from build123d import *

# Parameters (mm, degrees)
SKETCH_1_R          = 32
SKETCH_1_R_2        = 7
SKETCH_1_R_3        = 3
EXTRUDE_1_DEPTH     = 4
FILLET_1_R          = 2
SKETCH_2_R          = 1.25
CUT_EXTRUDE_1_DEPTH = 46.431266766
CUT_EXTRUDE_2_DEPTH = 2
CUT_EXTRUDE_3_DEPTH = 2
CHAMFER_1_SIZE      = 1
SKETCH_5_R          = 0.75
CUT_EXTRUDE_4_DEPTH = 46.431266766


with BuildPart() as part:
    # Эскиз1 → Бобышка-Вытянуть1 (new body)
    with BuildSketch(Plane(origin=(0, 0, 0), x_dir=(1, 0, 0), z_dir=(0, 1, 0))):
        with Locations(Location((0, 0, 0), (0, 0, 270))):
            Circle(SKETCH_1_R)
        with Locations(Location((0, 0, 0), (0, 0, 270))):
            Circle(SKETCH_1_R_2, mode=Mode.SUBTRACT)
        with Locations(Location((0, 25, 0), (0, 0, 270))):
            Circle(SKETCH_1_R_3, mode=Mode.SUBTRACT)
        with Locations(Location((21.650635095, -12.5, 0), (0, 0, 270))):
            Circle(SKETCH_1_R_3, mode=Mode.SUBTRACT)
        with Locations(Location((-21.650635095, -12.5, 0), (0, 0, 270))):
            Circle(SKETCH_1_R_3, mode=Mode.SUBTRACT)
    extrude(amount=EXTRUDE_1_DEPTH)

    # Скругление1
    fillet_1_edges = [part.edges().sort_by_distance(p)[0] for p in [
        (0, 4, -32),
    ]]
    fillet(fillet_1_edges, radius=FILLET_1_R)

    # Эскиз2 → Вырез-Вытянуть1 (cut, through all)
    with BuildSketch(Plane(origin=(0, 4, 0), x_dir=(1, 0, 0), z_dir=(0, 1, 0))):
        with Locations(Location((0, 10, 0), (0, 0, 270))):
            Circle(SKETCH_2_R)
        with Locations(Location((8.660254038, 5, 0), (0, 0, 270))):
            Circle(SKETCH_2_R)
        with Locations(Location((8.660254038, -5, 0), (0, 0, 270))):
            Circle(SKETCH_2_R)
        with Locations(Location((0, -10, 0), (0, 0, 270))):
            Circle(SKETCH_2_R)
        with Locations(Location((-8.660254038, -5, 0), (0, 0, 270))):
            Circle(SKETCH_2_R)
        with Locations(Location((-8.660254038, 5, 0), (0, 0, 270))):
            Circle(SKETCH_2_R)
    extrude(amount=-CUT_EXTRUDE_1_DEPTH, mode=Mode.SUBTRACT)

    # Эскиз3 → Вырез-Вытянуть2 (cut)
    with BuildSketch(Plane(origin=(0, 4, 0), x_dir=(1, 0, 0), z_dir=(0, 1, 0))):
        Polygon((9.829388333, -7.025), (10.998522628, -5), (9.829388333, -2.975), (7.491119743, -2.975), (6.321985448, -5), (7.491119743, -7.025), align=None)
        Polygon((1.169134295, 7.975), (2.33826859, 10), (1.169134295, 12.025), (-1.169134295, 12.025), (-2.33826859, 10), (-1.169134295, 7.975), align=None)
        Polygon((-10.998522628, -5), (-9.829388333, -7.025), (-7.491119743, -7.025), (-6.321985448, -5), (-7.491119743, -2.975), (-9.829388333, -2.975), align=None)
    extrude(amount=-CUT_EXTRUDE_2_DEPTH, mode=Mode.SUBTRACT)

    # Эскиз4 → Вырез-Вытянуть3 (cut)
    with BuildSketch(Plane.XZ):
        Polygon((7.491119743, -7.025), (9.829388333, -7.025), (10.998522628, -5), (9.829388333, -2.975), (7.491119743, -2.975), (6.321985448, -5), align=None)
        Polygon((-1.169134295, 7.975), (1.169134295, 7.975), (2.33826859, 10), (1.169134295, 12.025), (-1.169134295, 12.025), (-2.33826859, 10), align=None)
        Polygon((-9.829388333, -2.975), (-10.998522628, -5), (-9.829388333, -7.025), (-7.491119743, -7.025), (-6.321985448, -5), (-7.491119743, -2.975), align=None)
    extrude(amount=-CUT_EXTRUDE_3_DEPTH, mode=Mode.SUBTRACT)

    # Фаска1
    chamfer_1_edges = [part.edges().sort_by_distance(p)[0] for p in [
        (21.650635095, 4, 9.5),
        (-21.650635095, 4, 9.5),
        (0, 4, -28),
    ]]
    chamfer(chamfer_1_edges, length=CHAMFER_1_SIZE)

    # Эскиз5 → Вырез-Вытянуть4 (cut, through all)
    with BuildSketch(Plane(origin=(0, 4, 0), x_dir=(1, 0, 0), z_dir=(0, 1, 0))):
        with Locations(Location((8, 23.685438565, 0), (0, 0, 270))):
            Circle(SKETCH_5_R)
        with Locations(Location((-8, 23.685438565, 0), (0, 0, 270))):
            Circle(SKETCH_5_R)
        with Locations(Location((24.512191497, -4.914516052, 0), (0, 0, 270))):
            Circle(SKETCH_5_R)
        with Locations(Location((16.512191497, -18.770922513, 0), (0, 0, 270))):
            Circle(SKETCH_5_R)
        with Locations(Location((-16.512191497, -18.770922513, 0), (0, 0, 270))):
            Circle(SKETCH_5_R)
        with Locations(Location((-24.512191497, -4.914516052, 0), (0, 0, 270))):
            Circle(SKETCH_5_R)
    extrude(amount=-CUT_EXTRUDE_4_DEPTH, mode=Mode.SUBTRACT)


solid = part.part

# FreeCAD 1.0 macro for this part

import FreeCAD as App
import Part
import Sketcher
from FreeCAD import Vector
Q = App.Units.Quantity


def edges_at(feature, points):
    """Names of the edges that pass closest to the given points."""
    edges = feature.Shape.Edges
    near = lambda p: min(range(len(edges)), key=lambda i: edges[i].distToShape(Part.Vertex(*p))[0])
    return sorted({f"Edge{near(p) + 1}" for p in points})


def add_polygon(sketch, points):
    """Adds a closed chain of lines whose ends are joined by coincident constraints."""
    first, n = sketch.GeometryCount, len(points)
    for a, b in zip(points, points[1:] + points[:1]):
        sketch.addGeometry(Part.LineSegment(App.Vector(*a, 0), App.Vector(*b, 0)), False)
    for i in range(n):
        sketch.addConstraint(Sketcher.Constraint("Coincident", first + i, 2, first + (i + 1) % n, 1))

doc = App.newDocument("Part")
params = doc.addObject("Spreadsheet::Sheet", "Params")
for row, (alias, value) in enumerate([
    ("sketch1_diameter", "64 mm"),
    ("sketch1_diameter2", "6 mm"),
    ("sketch1_diameter3", "14 mm"),
    ("pad1_length", "4 mm"),
    ("fillet_radius", "2 mm"),
    ("sketch2_diameter", "2.5 mm"),
    ("pocket2_length", "2 mm"),
    ("pocket3_length", "2 mm"),
    ("chamfer_size", "1 mm"),
    ("sketch5_diameter", "1.5 mm"),
], start=1):
    params.set(f"A{row}", alias)
    params.set(f"B{row}", "=" + value)
    params.setAlias(f"B{row}", alias)

body = doc.addObject("PartDesign::Body", "Body")

# Sketch on XZ plane
sketch1 = doc.addObject("Sketcher::SketchObject", "Sketch")
body.addObject(sketch1)
sketch1.AttachmentSupport = (doc.XZ_Plane, [""])
sketch1.MapMode = "FlatFace"
sketch1.addGeometry([
    Part.Circle(Vector(0, 0, 0), Vector(0, 0, 1), 32),  # 0
    Part.Circle(Vector(0, -25, 0), Vector(0, 0, 1), 3),  # 1
    Part.Circle(Vector(-21.650635, 12.5, 0), Vector(0, 0, 1), 3),  # 2
    Part.Circle(Vector(0, 0, 0), Vector(0, 0, 1), 7),  # 3
    Part.Circle(Vector(21.650635, 12.5, 0), Vector(0, 0, 1), 3),  # 4
], False)
sketch1.addConstraint([
    Sketcher.Constraint("Coincident", 0, 3, -1, 1),
    Sketcher.Constraint("Coincident", 3, 3, -1, 1),
    Sketcher.Constraint("Equal", 1, 2),
    Sketcher.Constraint("Equal", 2, 4),
    Sketcher.Constraint("Symmetric", 2, 3, 4, 3, -2),
    Sketcher.Constraint("PointOnObject", 1, 3, -2),
    Sketcher.Constraint("Diameter", 0, 64.0),
    Sketcher.Constraint("Diameter", 1, 6.0),
    Sketcher.Constraint("Diameter", 3, 14.0),
    Sketcher.Constraint("DistanceY", 1, 3, -1, 1, 25.0),
    Sketcher.Constraint("DistanceY", -1, 1, 2, 3, 12.5),
    Sketcher.Constraint("DistanceX", 2, 3, 4, 3, 43.30127),
])
sketch1.setExpression("Constraints[6]", "Params.sketch1_diameter")
sketch1.setExpression("Constraints[7]", "Params.sketch1_diameter2")
sketch1.setExpression("Constraints[8]", "Params.sketch1_diameter3")
pad1 = doc.addObject("PartDesign::Pad", "Pad")
body.addObject(pad1)
pad1.Profile = sketch1
pad1.setExpression("Length", "Params.pad1_length")
pad1.Reversed = True
doc.recompute()

fillet = doc.addObject("PartDesign::Fillet", "Fillet")
body.addObject(fillet)
fillet.Base = (pad1, edges_at(pad1, [(0, 4, -32)]))
fillet.setExpression("Radius", "Params.fillet_radius")

# Sketch on XZ plane
sketch2 = doc.addObject("Sketcher::SketchObject", "Sketch001")
body.addObject(sketch2)
sketch2.AttachmentSupport = (doc.XZ_Plane, [""])
sketch2.MapMode = "FlatFace"
sketch2.AttachmentOffset = App.Placement(Vector(0, 0, -4), App.Rotation())
sketch2.addGeometry([
    Part.Circle(Vector(0, -10, 0), Vector(0, 0, 1), 1.25),  # 0
    Part.Circle(Vector(8.660254, -5, 0), Vector(0, 0, 1), 1.25),  # 1
    Part.Circle(Vector(8.660254, 5, 0), Vector(0, 0, 1), 1.25),  # 2
    Part.Circle(Vector(0, 10, 0), Vector(0, 0, 1), 1.25),  # 3
    Part.Circle(Vector(-8.660254, 5, 0), Vector(0, 0, 1), 1.25),  # 4
    Part.Circle(Vector(-8.660254, -5, 0), Vector(0, 0, 1), 1.25),  # 5
], False)
sketch2.addConstraint([
    Sketcher.Constraint("Equal", 0, 1),
    Sketcher.Constraint("Equal", 1, 2),
    Sketcher.Constraint("Equal", 2, 3),
    Sketcher.Constraint("Equal", 3, 4),
    Sketcher.Constraint("Equal", 4, 5),
    Sketcher.Constraint("Symmetric", 0, 3, 3, 3, -1, 1),
    Sketcher.Constraint("Symmetric", 1, 3, 4, 3, -1, 1),
    Sketcher.Constraint("Symmetric", 2, 3, 5, 3, -1, 1),
    Sketcher.Constraint("Symmetric", 2, 3, 4, 3, -2),
    Sketcher.Constraint("PointOnObject", 0, 3, -2),
    Sketcher.Constraint("Diameter", 0, 2.5),
    Sketcher.Constraint("DistanceY", 0, 3, -1, 1, 10.0),
    Sketcher.Constraint("DistanceY", 1, 3, -1, 1, 5.0),
    Sketcher.Constraint("DistanceX", 4, 3, 2, 3, 17.320508),
])
sketch2.setExpression("Constraints[10]", "Params.sketch2_diameter")
pocket1 = doc.addObject("PartDesign::Pocket", "Pocket")
body.addObject(pocket1)
pocket1.Profile = sketch2
pocket1.Type = "ThroughAll"
pocket1.Reversed = True

# Sketch on XZ plane
sketch3 = doc.addObject("Sketcher::SketchObject", "Sketch002")
body.addObject(sketch3)
sketch3.AttachmentSupport = (doc.XZ_Plane, [""])
sketch3.MapMode = "FlatFace"
sketch3.AttachmentOffset = App.Placement(Vector(0, 0, -4), App.Rotation())
add_polygon(sketch3, [(9.829388, 7.025), (10.998523, 5), (9.829388, 2.975), (7.49112, 2.975), (6.321985, 5), (7.49112, 7.025)])  # lines 0-5
add_polygon(sketch3, [(1.169134, -7.975), (2.338269, -10), (1.169134, -12.025), (-1.169134, -12.025), (-2.338269, -10), (-1.169134, -7.975)])  # lines 6-11
add_polygon(sketch3, [(-10.998523, 5), (-9.829388, 7.025), (-7.49112, 7.025), (-6.321985, 5), (-7.49112, 2.975), (-9.829388, 2.975)])  # lines 12-17
sketch3.addConstraint([
    Sketcher.Constraint("Horizontal", 2),
    Sketcher.Constraint("Horizontal", 5),
    Sketcher.Constraint("Horizontal", 8),
    Sketcher.Constraint("Horizontal", 11),
    Sketcher.Constraint("Horizontal", 13),
    Sketcher.Constraint("Horizontal", 16),
    Sketcher.Constraint("Symmetric", 6, 2, 9, 2, -2),
    Sketcher.Constraint("Symmetric", 5, 2, 12, 2, -2),
    Sketcher.Constraint("Symmetric", 3, 2, 14, 2, -2),
    Sketcher.Constraint("Symmetric", 2, 2, 15, 2, -2),
    Sketcher.Constraint("Symmetric", 0, 2, 17, 2, -2),
    Sketcher.Constraint("Parallel", 0, 3),
    Sketcher.Constraint("Parallel", 1, 4),
    Sketcher.Constraint("Parallel", 3, 6),
    Sketcher.Constraint("Parallel", 4, 7),
    Sketcher.Constraint("Parallel", 6, 9),
    Sketcher.Constraint("Parallel", 7, 10),
    Sketcher.Constraint("Parallel", 10, 12),
    Sketcher.Constraint("Parallel", 9, 14),
    Sketcher.Constraint("Parallel", 14, 17),
    Sketcher.Constraint("Horizontal", 0, 2, 3, 2),
    Sketcher.Constraint("Vertical", 2, 2, 4, 2),
    Sketcher.Constraint("Vertical", 8, 2, 10, 2),
    Sketcher.Constraint("Equal", 5, 8),
    Sketcher.Constraint("Equal", 4, 6),
    Sketcher.Constraint("Angle", 0, Q("-60 deg")),
    Sketcher.Constraint("DistanceY", -1, 1, 0, 2, 5.0),
    Sketcher.Constraint("DistanceY", 6, 2, -1, 1, 10.0),
    Sketcher.Constraint("DistanceY", 2, 2, 4, 2, 4.05),
    Sketcher.Constraint("DistanceX", 2, 2, 2, 1, 2.338269),
    Sketcher.Constraint("DistanceX", -1, 1, 1, 2, 9.829388),
])
pocket2 = doc.addObject("PartDesign::Pocket", "Pocket001")
body.addObject(pocket2)
pocket2.Profile = sketch3
pocket2.setExpression("Length", "Params.pocket2_length")
pocket2.Reversed = True

# Sketch on XZ plane
sketch4 = doc.addObject("Sketcher::SketchObject", "Sketch003")
body.addObject(sketch4)
sketch4.AttachmentSupport = (doc.XZ_Plane, [""])
sketch4.MapMode = "FlatFace"
add_polygon(sketch4, [(7.49112, -7.025), (9.829388, -7.025), (10.998523, -5), (9.829388, -2.975), (7.49112, -2.975), (6.321985, -5)])  # lines 0-5
add_polygon(sketch4, [(-1.169134, 7.975), (1.169134, 7.975), (2.338269, 10), (1.169134, 12.025), (-1.169134, 12.025), (-2.338269, 10)])  # lines 6-11
add_polygon(sketch4, [(-9.829388, -2.975), (-10.998523, -5), (-9.829388, -7.025), (-7.49112, -7.025), (-6.321985, -5), (-7.49112, -2.975)])  # lines 12-17
sketch4.addConstraint([
    Sketcher.Constraint("Horizontal", 0),
    Sketcher.Constraint("Horizontal", 3),
    Sketcher.Constraint("Horizontal", 6),
    Sketcher.Constraint("Horizontal", 9),
    Sketcher.Constraint("Horizontal", 14),
    Sketcher.Constraint("Horizontal", 17),
    Sketcher.Constraint("Symmetric", 7, 2, 10, 2, -2),
    Sketcher.Constraint("Symmetric", 1, 2, 12, 2, -2),
    Sketcher.Constraint("Symmetric", 0, 2, 13, 2, -2),
    Sketcher.Constraint("Symmetric", 4, 2, 15, 2, -2),
    Sketcher.Constraint("Symmetric", 3, 2, 16, 2, -2),
    Sketcher.Constraint("Parallel", 1, 4),
    Sketcher.Constraint("Parallel", 2, 5),
    Sketcher.Constraint("Parallel", 4, 7),
    Sketcher.Constraint("Parallel", 5, 8),
    Sketcher.Constraint("Parallel", 7, 10),
    Sketcher.Constraint("Parallel", 8, 11),
    Sketcher.Constraint("Parallel", 10, 12),
    Sketcher.Constraint("Parallel", 11, 13),
    Sketcher.Constraint("Parallel", 12, 15),
    Sketcher.Constraint("Horizontal", 1, 2, 4, 2),
    Sketcher.Constraint("Vertical", 0, 2, 2, 2),
    Sketcher.Constraint("Vertical", 6, 2, 8, 2),
    Sketcher.Constraint("Equal", 3, 6),
    Sketcher.Constraint("Equal", 5, 7),
    Sketcher.Constraint("Angle", 1, Q("60 deg")),
    Sketcher.Constraint("DistanceY", 1, 2, -1, 1, 5.0),
    Sketcher.Constraint("DistanceY", -1, 1, 7, 2, 10.0),
    Sketcher.Constraint("DistanceY", 0, 2, 2, 2, 4.05),
    Sketcher.Constraint("DistanceX", 0, 1, 0, 2, 2.338269),
    Sketcher.Constraint("DistanceX", -1, 1, 0, 2, 9.829388),
])
pocket3 = doc.addObject("PartDesign::Pocket", "Pocket002")
body.addObject(pocket3)
pocket3.Profile = sketch4
pocket3.setExpression("Length", "Params.pocket3_length")
doc.recompute()

chamfer = doc.addObject("PartDesign::Chamfer", "Chamfer")
body.addObject(chamfer)
chamfer.Base = (pocket3, edges_at(pocket3, [(21.651, 4, 9.5), (-21.651, 4, 9.5), (0, 4, -28)]))
chamfer.setExpression("Size", "Params.chamfer_size")

# Sketch on XZ plane
sketch5 = doc.addObject("Sketcher::SketchObject", "Sketch004")
body.addObject(sketch5)
sketch5.AttachmentSupport = (doc.XZ_Plane, [""])
sketch5.MapMode = "FlatFace"
sketch5.AttachmentOffset = App.Placement(Vector(0, 0, -4), App.Rotation())
sketch5.addGeometry([
    Part.Circle(Vector(8, -23.685439, 0), Vector(0, 0, 1), 0.75),  # 0
    Part.Circle(Vector(-8, -23.685439, 0), Vector(0, 0, 1), 0.75),  # 1
    Part.Circle(Vector(24.512191, 4.914516, 0), Vector(0, 0, 1), 0.75),  # 2
    Part.Circle(Vector(16.512191, 18.770923, 0), Vector(0, 0, 1), 0.75),  # 3
    Part.Circle(Vector(-16.512191, 18.770923, 0), Vector(0, 0, 1), 0.75),  # 4
    Part.Circle(Vector(-24.512191, 4.914516, 0), Vector(0, 0, 1), 0.75),  # 5
], False)
sketch5.addConstraint([
    Sketcher.Constraint("Equal", 0, 1),
    Sketcher.Constraint("Equal", 1, 2),
    Sketcher.Constraint("Equal", 2, 3),
    Sketcher.Constraint("Equal", 3, 4),
    Sketcher.Constraint("Equal", 4, 5),
    Sketcher.Constraint("Symmetric", 0, 3, 1, 3, -2),
    Sketcher.Constraint("Symmetric", 3, 3, 4, 3, -2),
    Sketcher.Constraint("Symmetric", 2, 3, 5, 3, -2),
    Sketcher.Constraint("Diameter", 0, 1.5),
    Sketcher.Constraint("DistanceX", -1, 1, 0, 3, 8.0),
    Sketcher.Constraint("DistanceX", 3, 3, 2, 3, 8.0),
    Sketcher.Constraint("DistanceY", 0, 3, -1, 1, 23.685439),
    Sketcher.Constraint("DistanceX", -1, 1, 2, 3, 24.512191),
    Sketcher.Constraint("DistanceY", 0, 3, 3, 3, 42.456361),
    Sketcher.Constraint("DistanceY", -1, 1, 2, 3, 4.914516),
])
sketch5.setExpression("Constraints[8]", "Params.sketch5_diameter")
pocket4 = doc.addObject("PartDesign::Pocket", "Pocket003")
body.addObject(pocket4)
pocket4.Profile = sketch5
pocket4.Type = "ThroughAll"
pocket4.Reversed = True

doc.recompute()
